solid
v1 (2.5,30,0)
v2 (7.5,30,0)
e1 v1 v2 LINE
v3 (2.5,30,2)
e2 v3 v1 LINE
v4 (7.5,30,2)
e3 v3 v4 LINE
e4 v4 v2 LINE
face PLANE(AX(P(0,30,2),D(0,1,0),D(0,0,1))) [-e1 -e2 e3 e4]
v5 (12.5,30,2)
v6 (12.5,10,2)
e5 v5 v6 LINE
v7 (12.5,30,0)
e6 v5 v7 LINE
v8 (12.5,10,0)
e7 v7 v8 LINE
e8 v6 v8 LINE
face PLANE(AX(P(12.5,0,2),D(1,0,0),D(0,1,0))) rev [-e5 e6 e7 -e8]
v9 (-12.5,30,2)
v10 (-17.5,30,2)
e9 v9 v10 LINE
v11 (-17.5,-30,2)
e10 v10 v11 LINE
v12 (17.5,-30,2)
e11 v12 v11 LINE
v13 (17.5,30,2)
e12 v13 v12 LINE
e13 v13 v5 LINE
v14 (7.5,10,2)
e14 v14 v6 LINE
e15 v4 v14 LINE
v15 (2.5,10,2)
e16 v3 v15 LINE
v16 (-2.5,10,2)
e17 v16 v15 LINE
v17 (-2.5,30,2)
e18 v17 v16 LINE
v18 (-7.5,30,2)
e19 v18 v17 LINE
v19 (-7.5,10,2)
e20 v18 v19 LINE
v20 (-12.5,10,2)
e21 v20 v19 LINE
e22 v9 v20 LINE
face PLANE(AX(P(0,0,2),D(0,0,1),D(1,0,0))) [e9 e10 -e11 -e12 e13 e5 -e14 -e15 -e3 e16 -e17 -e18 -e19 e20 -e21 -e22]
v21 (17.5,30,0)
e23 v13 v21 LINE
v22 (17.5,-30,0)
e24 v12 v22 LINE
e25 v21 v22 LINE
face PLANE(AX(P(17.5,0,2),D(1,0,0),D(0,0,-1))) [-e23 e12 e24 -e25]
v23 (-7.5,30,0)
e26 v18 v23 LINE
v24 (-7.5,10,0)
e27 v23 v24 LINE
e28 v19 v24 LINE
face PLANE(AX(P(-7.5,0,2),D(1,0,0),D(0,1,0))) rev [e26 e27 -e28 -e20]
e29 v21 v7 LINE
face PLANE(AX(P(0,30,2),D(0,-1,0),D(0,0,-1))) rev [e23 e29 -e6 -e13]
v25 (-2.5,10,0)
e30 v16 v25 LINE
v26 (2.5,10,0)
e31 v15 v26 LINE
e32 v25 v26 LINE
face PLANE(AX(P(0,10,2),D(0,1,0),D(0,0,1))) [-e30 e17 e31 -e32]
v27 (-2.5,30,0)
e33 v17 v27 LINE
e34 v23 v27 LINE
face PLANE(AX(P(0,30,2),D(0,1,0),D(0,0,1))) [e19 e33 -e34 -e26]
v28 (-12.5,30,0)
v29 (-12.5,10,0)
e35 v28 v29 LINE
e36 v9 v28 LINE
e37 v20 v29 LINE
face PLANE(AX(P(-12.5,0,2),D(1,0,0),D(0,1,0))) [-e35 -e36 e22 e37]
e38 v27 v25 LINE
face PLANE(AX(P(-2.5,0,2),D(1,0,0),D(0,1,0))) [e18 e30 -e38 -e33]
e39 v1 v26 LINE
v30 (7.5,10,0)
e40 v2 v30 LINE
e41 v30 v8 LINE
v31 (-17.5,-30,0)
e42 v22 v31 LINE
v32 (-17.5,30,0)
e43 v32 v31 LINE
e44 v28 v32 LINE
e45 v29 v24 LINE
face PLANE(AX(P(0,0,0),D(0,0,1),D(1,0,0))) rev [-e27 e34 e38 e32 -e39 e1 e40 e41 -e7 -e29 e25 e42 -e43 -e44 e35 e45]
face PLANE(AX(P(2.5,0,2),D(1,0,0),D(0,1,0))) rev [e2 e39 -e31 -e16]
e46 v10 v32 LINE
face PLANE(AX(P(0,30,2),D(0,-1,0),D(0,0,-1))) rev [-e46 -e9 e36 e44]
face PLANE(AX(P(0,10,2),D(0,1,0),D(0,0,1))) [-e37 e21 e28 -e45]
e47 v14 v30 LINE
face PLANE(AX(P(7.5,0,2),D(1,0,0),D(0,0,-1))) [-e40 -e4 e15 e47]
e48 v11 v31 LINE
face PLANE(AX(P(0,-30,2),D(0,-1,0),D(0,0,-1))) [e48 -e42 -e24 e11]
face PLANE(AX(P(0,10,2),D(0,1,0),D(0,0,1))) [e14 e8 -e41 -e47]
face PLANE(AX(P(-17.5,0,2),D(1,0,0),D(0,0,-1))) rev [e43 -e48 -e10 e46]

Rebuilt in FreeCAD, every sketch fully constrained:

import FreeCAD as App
import Part
import Sketcher

V = App.Vector


def add_polygon(sketch, points):
    """Adds a closed chain of lines whose ends are joined by coincident constraints."""
    first, n = sketch.GeometryCount, len(points)
    for a, b in zip(points, points[1:] + points[:1]):
        sketch.addGeometry(Part.LineSegment(App.Vector(*a, 0), App.Vector(*b, 0)), False)
    for i in range(n):
        sketch.addConstraint(Sketcher.Constraint("Coincident", first + i, 2, first + (i + 1) % n, 1))

doc = App.newDocument("Part")
body = doc.addObject("PartDesign::Body", "Body")

# Sketch on XY plane
sketch1 = body.newObject("Sketcher::SketchObject", "Sketch")
sketch1.AttachmentSupport = (doc.getObject("XY_Plane"), [""])
sketch1.MapMode = "FlatFace"
add_polygon(sketch1, [(-18, 0), (-18, -30), (18, -30), (18, 0)])  # lines 0-3
sketch1.addConstraint([
    Sketcher.Constraint("Vertical", 0),
    Sketcher.Constraint("Horizontal", 1),
    Sketcher.Constraint("Vertical", 2),
    Sketcher.Constraint("Horizontal", 3),
    Sketcher.Constraint("Symmetric", 2, 2, 3, 2, -1, 1),
    Sketcher.Constraint("DistanceX", 1, 1, 1, 2, 35.0),
    Sketcher.Constraint("DistanceY", 0, 2, 0, 1, 30.0),
])
pad1 = body.newObject("PartDesign::Pad", "Pad")
pad1.Profile = sketch1
pad1.Length = 2

# Sketch on XY plane
sketch2 = body.newObject("Sketcher::SketchObject", "Sketch001")
sketch2.AttachmentSupport = (doc.getObject("XY_Plane"), [""])
sketch2.MapMode = "FlatFace"
add_polygon(sketch2, [(-12, 10), (-12, 30), (-18, 30), (-18, 0), (18, 0), (18, 30), (12, 30), (12, 10), (8, 10), (8, 30), (2, 30), (2, 10), (-2, 10), (-2, 30), (-8, 30), (-8, 10)])  # lines 0-15
sketch2.addConstraint([
    Sketcher.Constraint("Vertical", 0),
    Sketcher.Constraint("Horizontal", 1),
    Sketcher.Constraint("Vertical", 2),
    Sketcher.Constraint("Horizontal", 3),
    Sketcher.Constraint("Vertical", 4),
    Sketcher.Constraint("Horizontal", 5),
    Sketcher.Constraint("Vertical", 6),
    Sketcher.Constraint("Horizontal", 7),
    Sketcher.Constraint("Vertical", 8),
    Sketcher.Constraint("Horizontal", 9),
    Sketcher.Constraint("Vertical", 10),
    Sketcher.Constraint("Horizontal", 11),
    Sketcher.Constraint("Vertical", 12),
    Sketcher.Constraint("Horizontal", 13),
    Sketcher.Constraint("Vertical", 14),
    Sketcher.Constraint("Horizontal", 15),
    Sketcher.Constraint("Symmetric", 2, 2, 3, 2, -1, 1),
    Sketcher.Constraint("Symmetric", 0, 2, 5, 2, -2),
    Sketcher.Constraint("Symmetric", 9, 2, 12, 2, -2),
    Sketcher.Constraint("Symmetric", 7, 2, 14, 2, -2),
    Sketcher.Constraint("Horizontal", 5, 2, 8, 2),
    Sketcher.Constraint("Horizontal", 7, 2, 10, 2),
    Sketcher.Constraint("Equal", 5, 7),
    Sketcher.Constraint("Equal", 7, 9),
    Sketcher.Constraint("Equal", 9, 11),
    Sketcher.Constraint("DistanceX", 1, 2, 1, 1, 5.0),
    Sketcher.Constraint("DistanceY", 0, 1, 0, 2, 20.0),
    Sketcher.Constraint("DistanceY", 2, 2, 2, 1, 30.0),
])
pad2 = body.newObject("PartDesign::Pad", "Pad001")
pad2.Profile = sketch2
pad2.Length = 2

doc.recompute()
